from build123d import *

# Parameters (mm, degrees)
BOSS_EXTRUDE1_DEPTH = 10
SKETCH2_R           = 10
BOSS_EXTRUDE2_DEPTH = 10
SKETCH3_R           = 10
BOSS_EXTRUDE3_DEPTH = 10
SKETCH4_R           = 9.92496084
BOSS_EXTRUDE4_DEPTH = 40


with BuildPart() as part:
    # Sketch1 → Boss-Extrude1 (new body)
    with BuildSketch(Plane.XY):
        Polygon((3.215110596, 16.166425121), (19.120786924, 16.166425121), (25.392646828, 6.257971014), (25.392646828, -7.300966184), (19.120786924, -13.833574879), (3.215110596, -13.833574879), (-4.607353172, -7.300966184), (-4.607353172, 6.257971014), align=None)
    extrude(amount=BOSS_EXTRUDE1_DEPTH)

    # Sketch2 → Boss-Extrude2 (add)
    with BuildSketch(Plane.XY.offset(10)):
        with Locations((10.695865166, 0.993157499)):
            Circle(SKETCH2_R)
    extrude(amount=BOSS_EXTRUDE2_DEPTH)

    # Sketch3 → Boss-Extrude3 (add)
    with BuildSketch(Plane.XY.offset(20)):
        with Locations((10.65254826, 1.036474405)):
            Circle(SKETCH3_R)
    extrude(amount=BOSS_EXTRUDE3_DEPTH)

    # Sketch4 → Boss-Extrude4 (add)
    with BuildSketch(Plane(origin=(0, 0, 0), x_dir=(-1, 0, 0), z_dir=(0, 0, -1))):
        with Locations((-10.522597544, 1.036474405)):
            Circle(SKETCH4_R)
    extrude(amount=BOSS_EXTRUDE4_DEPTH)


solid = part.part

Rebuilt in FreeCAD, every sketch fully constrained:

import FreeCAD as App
import Part
import Sketcher
Q = App.Units.Quantity

doc = App.newDocument("Part")
body = doc.addObject("PartDesign::Body", "Body")

sketch1 = body.newObject("Sketcher::SketchObject", "Sketch")
sketch1.AttachmentSupport = (doc.getObject("XY_Plane"), [""])
sketch1.MapMode = "FlatFace"
sketch1.addGeometry([
    Part.LineSegment(App.Vector(19, 16, 0), App.Vector(3, 16, 0)),
    Part.LineSegment(App.Vector(3, 16, 0), App.Vector(-5, 6, 0)),
    Part.LineSegment(App.Vector(-5, 6, 0), App.Vector(-5, -7, 0)),
    Part.LineSegment(App.Vector(-5, -7, 0), App.Vector(3, -14, 0)),
    Part.LineSegment(App.Vector(3, -14, 0), App.Vector(19, -14, 0)),
    Part.LineSegment(App.Vector(19, -14, 0), App.Vector(25, -7, 0)),
    Part.LineSegment(App.Vector(25, -7, 0), App.Vector(25, 6, 0)),
    Part.LineSegment(App.Vector(25, 6, 0), App.Vector(19, 16, 0)),
], False)
sketch1.addConstraint([
    Sketcher.Constraint("Coincident", 0, 2, 1, 1),
    Sketcher.Constraint("Coincident", 1, 2, 2, 1),
    Sketcher.Constraint("Coincident", 2, 2, 3, 1),
    Sketcher.Constraint("Coincident", 3, 2, 4, 1),
    Sketcher.Constraint("Coincident", 4, 2, 5, 1),
    Sketcher.Constraint("Coincident", 5, 2, 6, 1),
    Sketcher.Constraint("Coincident", 6, 2, 7, 1),
    Sketcher.Constraint("Coincident", 7, 2, 0, 1),
    Sketcher.Constraint("Horizontal", 0),
    Sketcher.Constraint("Vertical", 2),
    Sketcher.Constraint("Horizontal", 4),
    Sketcher.Constraint("Vertical", 6),
    Sketcher.Constraint("Horizontal", 2, 2, 5, 2),
    Sketcher.Constraint("Horizontal", 1, 2, 6, 2),
    Sketcher.Constraint("Vertical", 0, 2, 3, 2),
    Sketcher.Constraint("Vertical", 4, 2, 7, 2),
    Sketcher.Constraint("DistanceY", 3, 2, 0, 2, Q("30 mm")),
    Sketcher.Constraint("DistanceX", 2, 2, 5, 2, Q("30 mm")),
    Sketcher.Constraint("Distance", 1, Q("12.62412 mm")),
    Sketcher.Constraint("DistanceX", 0, 2, 0, 1, Q("15.905676 mm")),
    Sketcher.Constraint("DistanceY", 2, 2, 2, 1, Q("13.558937 mm")),
    Sketcher.Constraint("DistanceX", -1, 1, 0, 2, Q("3.215111 mm")),
    Sketcher.Constraint("DistanceY", -1, 1, 1, 2, Q("6.257971 mm")),
    Sketcher.Constraint("DistanceY", 2, 2, 0, 2, Q("23.467391 mm")),
])
pad1 = body.newObject("PartDesign::Pad", "Pad")
pad1.Profile = sketch1
pad1.Length = 10

sketch2 = body.newObject("Sketcher::SketchObject", "Sketch001")
sketch2.AttachmentSupport = (doc.getObject("XY_Plane"), [""])
sketch2.MapMode = "FlatFace"
sketch2.AttachmentOffset = App.Placement(App.Vector(0, 0, 10), App.Rotation())
sketch2.addGeometry(Part.Circle(App.Vector(11, 1, 0), App.Vector(0, 0, 1), 10), False)
sketch2.addConstraint([
    Sketcher.Constraint("Diameter", 0, Q("20 mm")),
    Sketcher.Constraint("DistanceX", -1, 1, 0, 3, Q("10.695865 mm")),
    Sketcher.Constraint("DistanceY", -1, 1, 0, 3, Q("0.993157 mm")),
])
pad2 = body.newObject("PartDesign::Pad", "Pad001")
pad2.Profile = sketch2
pad2.Length = 10

sketch3 = body.newObject("Sketcher::SketchObject", "Sketch002")
sketch3.AttachmentSupport = (doc.getObject("XY_Plane"), [""])
sketch3.MapMode = "FlatFace"
sketch3.AttachmentOffset = App.Placement(App.Vector(0, 0, 20), App.Rotation())
sketch3.addGeometry(Part.Circle(App.Vector(11, 1, 0), App.Vector(0, 0, 1), 10), False)
sketch3.addConstraint([
    Sketcher.Constraint("Diameter", 0, Q("20 mm")),
    Sketcher.Constraint("DistanceX", -1, 1, 0, 3, Q("10.652548 mm")),
    Sketcher.Constraint("DistanceY", -1, 1, 0, 3, Q("1.036474 mm")),
])
pad3 = body.newObject("PartDesign::Pad", "Pad002")
pad3.Profile = sketch3
pad3.Length = 10

sketch4 = body.newObject("Sketcher::SketchObject", "Sketch003")
sketch4.AttachmentSupport = (doc.getObject("XY_Plane"), [""])
sketch4.MapMode = "FlatFace"
sketch4.addGeometry(Part.Circle(App.Vector(11, 1, 0), App.Vector(0, 0, 1), 10), False)
sketch4.addConstraint([
    Sketcher.Constraint("Diameter", 0, Q("19.849922 mm")),
    Sketcher.Constraint("DistanceX", -1, 1, 0, 3, Q("10.522598 mm")),
    Sketcher.Constraint("DistanceY", -1, 1, 0, 3, Q("1.036474 mm")),
])
pad4 = body.newObject("PartDesign::Pad", "Pad003")
pad4.Profile = sketch4
pad4.Length = 40
pad4.Reversed = True

doc.recompute()
